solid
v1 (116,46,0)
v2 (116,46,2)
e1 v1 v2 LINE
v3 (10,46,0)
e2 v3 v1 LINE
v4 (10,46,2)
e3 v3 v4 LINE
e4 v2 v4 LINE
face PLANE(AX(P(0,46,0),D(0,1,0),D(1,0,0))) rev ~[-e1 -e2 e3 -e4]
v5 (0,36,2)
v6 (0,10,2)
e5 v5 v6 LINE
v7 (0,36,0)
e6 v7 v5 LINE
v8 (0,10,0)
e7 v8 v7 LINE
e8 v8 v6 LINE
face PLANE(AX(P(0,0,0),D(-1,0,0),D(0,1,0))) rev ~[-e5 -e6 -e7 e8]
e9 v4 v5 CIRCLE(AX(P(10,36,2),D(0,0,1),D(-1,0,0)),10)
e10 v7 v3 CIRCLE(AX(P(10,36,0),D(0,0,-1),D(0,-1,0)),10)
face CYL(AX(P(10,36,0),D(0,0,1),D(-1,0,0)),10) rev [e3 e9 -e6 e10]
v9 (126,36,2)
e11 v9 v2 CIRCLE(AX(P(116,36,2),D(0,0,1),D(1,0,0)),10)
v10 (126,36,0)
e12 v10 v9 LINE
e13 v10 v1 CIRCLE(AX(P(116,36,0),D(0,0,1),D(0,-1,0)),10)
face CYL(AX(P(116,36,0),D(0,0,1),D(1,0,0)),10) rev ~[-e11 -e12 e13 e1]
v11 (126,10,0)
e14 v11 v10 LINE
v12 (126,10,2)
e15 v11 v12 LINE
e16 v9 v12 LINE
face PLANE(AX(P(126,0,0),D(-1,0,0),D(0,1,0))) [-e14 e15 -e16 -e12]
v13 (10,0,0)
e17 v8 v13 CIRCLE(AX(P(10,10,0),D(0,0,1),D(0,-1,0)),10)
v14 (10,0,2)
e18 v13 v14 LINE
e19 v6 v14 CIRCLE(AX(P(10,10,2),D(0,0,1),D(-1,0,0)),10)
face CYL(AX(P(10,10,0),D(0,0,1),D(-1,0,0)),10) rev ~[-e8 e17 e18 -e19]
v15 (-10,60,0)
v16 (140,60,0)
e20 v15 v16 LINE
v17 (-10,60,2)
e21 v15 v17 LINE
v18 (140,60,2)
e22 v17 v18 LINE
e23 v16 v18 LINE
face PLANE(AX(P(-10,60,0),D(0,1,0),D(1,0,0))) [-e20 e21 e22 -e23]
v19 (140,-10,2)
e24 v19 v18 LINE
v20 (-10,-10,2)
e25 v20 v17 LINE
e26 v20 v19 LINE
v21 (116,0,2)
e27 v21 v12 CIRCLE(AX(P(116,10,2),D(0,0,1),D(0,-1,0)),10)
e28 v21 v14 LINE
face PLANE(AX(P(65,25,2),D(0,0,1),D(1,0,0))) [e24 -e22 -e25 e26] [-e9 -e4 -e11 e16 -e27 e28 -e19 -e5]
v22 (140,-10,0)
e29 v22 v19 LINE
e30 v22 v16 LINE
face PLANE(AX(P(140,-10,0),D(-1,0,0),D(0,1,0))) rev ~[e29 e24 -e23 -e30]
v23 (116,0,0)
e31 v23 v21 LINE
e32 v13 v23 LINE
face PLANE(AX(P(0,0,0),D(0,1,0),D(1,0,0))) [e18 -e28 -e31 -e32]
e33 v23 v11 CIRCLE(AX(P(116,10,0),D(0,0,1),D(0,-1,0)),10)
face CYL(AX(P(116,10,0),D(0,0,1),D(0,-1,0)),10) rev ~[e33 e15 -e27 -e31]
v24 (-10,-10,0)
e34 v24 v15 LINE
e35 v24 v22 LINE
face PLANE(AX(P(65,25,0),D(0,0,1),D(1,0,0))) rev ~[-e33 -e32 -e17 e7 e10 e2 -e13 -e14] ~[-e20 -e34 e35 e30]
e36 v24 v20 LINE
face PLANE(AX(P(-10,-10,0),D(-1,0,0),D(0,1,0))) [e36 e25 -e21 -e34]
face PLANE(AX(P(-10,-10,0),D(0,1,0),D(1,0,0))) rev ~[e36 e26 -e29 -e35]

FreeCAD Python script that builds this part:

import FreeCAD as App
import Part
import Sketcher
from FreeCAD import Vector


def edges_at(feature, points):
    """Names of the edges that pass closest to the given points."""
    edges = feature.Shape.Edges
    near = lambda p: min(range(len(edges)), key=lambda i: edges[i].distToShape(Part.Vertex(*p))[0])
    return sorted({f"Edge{near(p) + 1}" for p in points})


def add_polygon(sketch, points):
    """Adds a closed chain of lines whose ends are joined by coincident constraints."""
    first, n = sketch.GeometryCount, len(points)
    for a, b in zip(points, points[1:] + points[:1]):
        sketch.addGeometry(Part.LineSegment(App.Vector(*a, 0), App.Vector(*b, 0)), False)
    for i in range(n):
        sketch.addConstraint(Sketcher.Constraint("Coincident", first + i, 2, first + (i + 1) % n, 1))

doc = App.newDocument("Part")
params = doc.addObject("Spreadsheet::Sheet", "Params")
for row, (alias, value) in enumerate([
    ("sketch1_width", "126 mm"),
    ("sketch1_height", "46 mm"),
    ("pad1_length", "10 mm"),
    ("fillet_radius", "10 mm"),
    ("sketch2_width", "150 mm"),
    ("sketch2_height", "70 mm"),
    ("pad2_length", "2 mm"),
], start=1):
    params.set(f"A{row}", alias)
    params.set(f"B{row}", "=" + value)
    params.setAlias(f"B{row}", alias)

body = doc.addObject("PartDesign::Body", "Body")

# Sketch on XY plane
sketch1 = body.newObject("Sketcher::SketchObject", "Sketch")
sketch1.AttachmentSupport = (doc.getObject("XY_Plane"), [""])
sketch1.MapMode = "FlatFace"
add_polygon(sketch1, [(0, 46), (0, 0), (126, 0), (126, 46)])  # lines 0-3
sketch1.addConstraint([
    Sketcher.Constraint("Vertical", 0),
    Sketcher.Constraint("Horizontal", 1),
    Sketcher.Constraint("Vertical", 2),
    Sketcher.Constraint("Horizontal", 3),
    Sketcher.Constraint("Coincident", 0, 2, -1, 1),
    Sketcher.Constraint("DistanceX", 1, 1, 1, 2, 126.0),
    Sketcher.Constraint("DistanceY", 0, 2, 0, 1, 46.0),
])
sketch1.setExpression("Constraints[9]", "Params.sketch1_width")
sketch1.setExpression("Constraints[10]", "Params.sketch1_height")
pad1 = body.newObject("PartDesign::Pad", "Pad")
pad1.Profile = sketch1
pad1.setExpression("Length", "Params.pad1_length")
doc.recompute()

fillet = body.newObject("PartDesign::Fillet", "Fillet")
fillet.Base = (pad1, edges_at(pad1, [
    (0, 0, 5),
    (0, 46, 5),
    (126, 0, 5),
    (126, 46, 5),
]))
fillet.setExpression("Radius", "Params.fillet_radius")
body2 = doc.addObject("PartDesign::Body", "Body001")

# Sketch on XY plane
sketch2 = body2.newObject("Sketcher::SketchObject", "Sketch001")
sketch2.AttachmentSupport = (doc.getObject("XY_Plane001"), [""])
sketch2.MapMode = "FlatFace"
add_polygon(sketch2, [(-10, 60), (-10, -10), (140, -10), (140, 60)])  # lines 0-3
sketch2.addConstraint([
    Sketcher.Constraint("Vertical", 0),
    Sketcher.Constraint("Horizontal", 1),
    Sketcher.Constraint("Vertical", 2),
    Sketcher.Constraint("Horizontal", 3),
    Sketcher.Constraint("DistanceX", 1, 1, 1, 2, 150.0),
    Sketcher.Constraint("DistanceY", 0, 2, 0, 1, 70.0),
    Sketcher.Constraint("DistanceX", 0, 2, -1, 1, 10.0),
    Sketcher.Constraint("DistanceY", 0, 2, -1, 1, 10.0),
])
sketch2.setExpression("Constraints[8]", "Params.sketch2_width")
sketch2.setExpression("Constraints[9]", "Params.sketch2_height")
pad2 = body2.newObject("PartDesign::Pad", "Pad001")
pad2.Profile = sketch2
pad2.setExpression("Length", "Params.pad2_length")
doc.recompute()

boolean = body2.newObject("PartDesign::Boolean", "Boolean")
boolean.Type = "Cut"
boolean.addObjects([body])

doc.recompute()
